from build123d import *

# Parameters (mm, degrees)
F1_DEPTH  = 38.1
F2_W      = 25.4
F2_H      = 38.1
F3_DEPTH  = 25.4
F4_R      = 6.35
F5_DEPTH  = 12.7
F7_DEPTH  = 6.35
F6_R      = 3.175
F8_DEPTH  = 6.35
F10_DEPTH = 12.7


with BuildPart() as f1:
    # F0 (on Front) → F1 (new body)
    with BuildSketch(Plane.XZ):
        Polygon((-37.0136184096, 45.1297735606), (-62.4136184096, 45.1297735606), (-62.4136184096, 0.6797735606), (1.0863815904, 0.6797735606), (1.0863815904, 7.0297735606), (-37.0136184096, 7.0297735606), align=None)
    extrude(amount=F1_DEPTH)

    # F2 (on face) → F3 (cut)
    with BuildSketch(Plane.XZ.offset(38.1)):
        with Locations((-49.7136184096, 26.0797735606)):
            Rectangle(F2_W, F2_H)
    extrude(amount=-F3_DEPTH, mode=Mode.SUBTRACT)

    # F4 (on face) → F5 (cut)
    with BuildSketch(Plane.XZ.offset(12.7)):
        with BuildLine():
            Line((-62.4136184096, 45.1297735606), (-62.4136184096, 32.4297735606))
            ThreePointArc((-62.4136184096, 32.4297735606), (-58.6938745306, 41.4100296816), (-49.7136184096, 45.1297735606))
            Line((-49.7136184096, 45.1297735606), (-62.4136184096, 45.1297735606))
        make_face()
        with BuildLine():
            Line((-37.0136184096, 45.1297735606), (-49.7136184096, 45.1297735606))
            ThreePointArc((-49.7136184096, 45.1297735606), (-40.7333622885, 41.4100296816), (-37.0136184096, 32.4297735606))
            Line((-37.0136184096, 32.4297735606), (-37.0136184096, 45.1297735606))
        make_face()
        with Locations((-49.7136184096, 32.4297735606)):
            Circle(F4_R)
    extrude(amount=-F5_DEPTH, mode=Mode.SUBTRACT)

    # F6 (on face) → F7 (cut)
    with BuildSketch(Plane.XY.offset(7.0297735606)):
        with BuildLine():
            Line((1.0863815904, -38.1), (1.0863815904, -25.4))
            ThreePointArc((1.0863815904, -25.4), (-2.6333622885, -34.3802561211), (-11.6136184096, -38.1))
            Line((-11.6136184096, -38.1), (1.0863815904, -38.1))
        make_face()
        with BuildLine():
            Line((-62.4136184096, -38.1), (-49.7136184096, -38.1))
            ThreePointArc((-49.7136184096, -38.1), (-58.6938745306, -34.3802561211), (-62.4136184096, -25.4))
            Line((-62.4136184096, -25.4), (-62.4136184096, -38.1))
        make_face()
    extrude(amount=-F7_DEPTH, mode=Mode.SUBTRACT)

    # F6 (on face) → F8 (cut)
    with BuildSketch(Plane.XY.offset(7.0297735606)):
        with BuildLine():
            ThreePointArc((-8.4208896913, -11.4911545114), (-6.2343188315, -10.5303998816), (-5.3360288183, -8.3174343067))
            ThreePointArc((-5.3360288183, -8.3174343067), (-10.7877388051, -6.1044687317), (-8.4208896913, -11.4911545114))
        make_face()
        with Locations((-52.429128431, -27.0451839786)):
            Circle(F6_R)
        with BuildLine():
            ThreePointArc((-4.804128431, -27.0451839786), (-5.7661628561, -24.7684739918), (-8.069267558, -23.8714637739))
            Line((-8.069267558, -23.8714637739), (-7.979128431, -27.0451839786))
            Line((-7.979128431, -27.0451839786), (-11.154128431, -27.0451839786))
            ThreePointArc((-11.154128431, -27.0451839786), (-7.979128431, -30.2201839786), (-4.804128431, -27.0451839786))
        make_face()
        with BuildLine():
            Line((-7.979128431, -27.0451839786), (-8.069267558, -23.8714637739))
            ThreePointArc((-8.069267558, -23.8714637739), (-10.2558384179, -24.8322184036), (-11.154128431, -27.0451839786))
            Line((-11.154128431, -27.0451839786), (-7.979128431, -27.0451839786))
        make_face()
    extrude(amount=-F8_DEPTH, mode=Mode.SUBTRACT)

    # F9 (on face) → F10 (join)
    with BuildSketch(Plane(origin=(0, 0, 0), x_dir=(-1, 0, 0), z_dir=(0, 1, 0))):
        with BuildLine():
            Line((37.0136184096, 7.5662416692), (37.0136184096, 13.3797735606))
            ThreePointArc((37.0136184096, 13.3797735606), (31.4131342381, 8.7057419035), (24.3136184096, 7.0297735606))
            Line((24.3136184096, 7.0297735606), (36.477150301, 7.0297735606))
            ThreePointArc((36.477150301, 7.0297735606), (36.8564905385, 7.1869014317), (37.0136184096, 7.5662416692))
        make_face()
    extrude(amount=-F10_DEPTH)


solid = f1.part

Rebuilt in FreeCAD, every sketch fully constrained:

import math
import FreeCAD as App
import Part
import Sketcher
from FreeCAD import Vector
Q = App.Units.Quantity


def add_polygon(sketch, points):
    """Adds a closed chain of lines whose ends are joined by coincident constraints."""
    first, n = sketch.GeometryCount, len(points)
    for a, b in zip(points, points[1:] + points[:1]):
        sketch.addGeometry(Part.LineSegment(App.Vector(*a, 0), App.Vector(*b, 0)), False)
    for i in range(n):
        sketch.addConstraint(Sketcher.Constraint("Coincident", first + i, 2, first + (i + 1) % n, 1))

doc = App.newDocument("Part")
params = doc.addObject("Spreadsheet::Sheet", "Params")
for row, (alias, value) in enumerate([
    ("sketch1_width", "1 in"),
    ("sketch1_width2", "2.5 in"),
    ("sketch1_height", "1.75 in"),
    ("pad1_length", "1.5 in"),
    ("sketch2_width", "1 in"),
    ("sketch2_height", "1.5 in"),
    ("pocket1_length", "1 in"),
    ("sketch3_diameter", "0.5 in"),
    ("sketch3_radius", "0.5 in"),
    ("pocket2_length", "0.5 in"),
    ("sketch4_radius", "0.5 in"),
    ("pocket3_length", "0.25 in"),
    ("sketch5_diameter", "0.25 in"),
    ("pocket4_length", "0.25 in"),
    ("sketch6_radius", "0.625 in"),
    ("pad2_length", "0.5 in"),
], start=1):
    params.set(f"A{row}", alias)
    params.set(f"B{row}", "=" + value)
    params.setAlias(f"B{row}", alias)

body = doc.addObject("PartDesign::Body", "Body")

# Sketch on XZ plane
sketch1 = body.newObject("Sketcher::SketchObject", "Sketch")
sketch1.AttachmentSupport = (doc.getObject("XZ_Plane"), [""])
sketch1.MapMode = "FlatFace"
add_polygon(sketch1, [(-37.013618, 45.129774), (-62.413618, 45.129774), (-62.413618, 0.679774), (1.086382, 0.679774), (1.086382, 7.029774), (-37.013618, 7.029774)])  # lines 0-5
sketch1.addConstraint([
    Sketcher.Constraint("Horizontal", 0),
    Sketcher.Constraint("Vertical", 1),
    Sketcher.Constraint("Horizontal", 2),
    Sketcher.Constraint("Vertical", 3),
    Sketcher.Constraint("Horizontal", 4),
    Sketcher.Constraint("Vertical", 5),
    Sketcher.Constraint("Equal", 4, 5),
    Sketcher.Constraint("DistanceX", 0, 2, 0, 1, Q("1 in")),
    Sketcher.Constraint("DistanceX", 2, 1, 2, 2, Q("2.5 in")),
    Sketcher.Constraint("DistanceY", 1, 2, 1, 1, Q("1.75 in")),
    Sketcher.Constraint("DistanceX", 0, 2, -1, 1, Q("62.413618 mm")),
    Sketcher.Constraint("DistanceY", -1, 1, 0, 2, Q("45.129774 mm")),
])
sketch1.setExpression("Constraints[13]", "Params.sketch1_width")
sketch1.setExpression("Constraints[14]", "Params.sketch1_width2")
sketch1.setExpression("Constraints[15]", "Params.sketch1_height")
pad1 = body.newObject("PartDesign::Pad", "Pad")
pad1.Profile = sketch1
pad1.setExpression("Length", "Params.pad1_length")

# Sketch on XZ plane
sketch2 = body.newObject("Sketcher::SketchObject", "Sketch001")
sketch2.AttachmentSupport = (doc.getObject("XZ_Plane"), [""])
sketch2.MapMode = "FlatFace"
sketch2.AttachmentOffset = App.Placement(Vector(0, 0, 1.5 * 25.4), App.Rotation())
add_polygon(sketch2, [(-62.413618, 45.129774), (-62.413618, 7.029774), (-37.013618, 7.029774), (-37.013618, 45.129774)])  # lines 0-3
sketch2.addConstraint([
    Sketcher.Constraint("Vertical", 0),
    Sketcher.Constraint("Horizontal", 1),
    Sketcher.Constraint("Vertical", 2),
    Sketcher.Constraint("Horizontal", 3),
    Sketcher.Constraint("DistanceX", 1, 1, 1, 2, Q("1 in")),
    Sketcher.Constraint("DistanceY", 0, 2, 0, 1, Q("1.5 in")),
    Sketcher.Constraint("DistanceX", 0, 2, -1, 1, Q("62.413618 mm")),
    Sketcher.Constraint("DistanceY", -1, 1, 0, 2, Q("7.029774 mm")),
])
sketch2.setExpression("Constraints[8]", "Params.sketch2_width")
sketch2.setExpression("Constraints[9]", "Params.sketch2_height")
pocket1 = body.newObject("PartDesign::Pocket", "Pocket")
pocket1.Profile = sketch2
pocket1.setExpression("Length", "Params.pocket1_length")

# Sketch on XZ plane
sketch3 = body.newObject("Sketcher::SketchObject", "Sketch002")
sketch3.AttachmentSupport = (doc.getObject("XZ_Plane"), [""])
sketch3.MapMode = "FlatFace"
sketch3.AttachmentOffset = App.Placement(Vector(0, 0, 0.5 * 25.4), App.Rotation())
sketch3.addGeometry([
    Part.LineSegment(Vector(-62.413618, 45.129774, 0), Vector(-62.413618, 32.429774, 0)),  # 0
    Part.ArcOfCircle(Part.Circle(Vector(-49.713618, 32.429774, 0), Vector(0, 0, 1), 12.7), math.radians(90), math.radians(180)),  # 1
    Part.LineSegment(Vector(-49.713618, 45.129774, 0), Vector(-62.413618, 45.129774, 0)),  # 2
    Part.LineSegment(Vector(-37.013618, 45.129774, 0), Vector(-49.713618, 45.129774, 0)),  # 3
    Part.ArcOfCircle(Part.Circle(Vector(-49.713618, 32.429774, 0), Vector(0, 0, 1), 12.7), math.radians(0), math.radians(90)),  # 4
    Part.LineSegment(Vector(-37.013618, 32.429774, 0), Vector(-37.013618, 45.129774, 0)),  # 5
    Part.Circle(Vector(-49.713618, 32.429774, 0), Vector(0, 0, 1), 6.35),  # 6
], False)
sketch3.addConstraint([
    Sketcher.Constraint("Tangent", 0, 2, 1, 2),
    Sketcher.Constraint("Tangent", 1, 1, 2, 1),
    Sketcher.Constraint("Coincident", 2, 2, 0, 1),
    Sketcher.Constraint("Tangent", 3, 2, 4, 2),
    Sketcher.Constraint("Tangent", 4, 1, 5, 1),
    Sketcher.Constraint("Coincident", 5, 2, 3, 1),
    Sketcher.Constraint("Vertical", 0),
    Sketcher.Constraint("Horizontal", 2),
    Sketcher.Constraint("Horizontal", 3),
    Sketcher.Constraint("Vertical", 5),
    Sketcher.Constraint("Coincident", 4, 3, 1, 3),
    Sketcher.Constraint("Coincident", 6, 3, 1, 3),
    Sketcher.Constraint("Equal", 1, 4),
    Sketcher.Constraint("Diameter", 6, Q("0.5 in")),
    Sketcher.Constraint("Radius", 1, Q("0.5 in")),
    Sketcher.Constraint("DistanceX", 1, 3, -1, 1, Q("49.713618 mm")),
    Sketcher.Constraint("DistanceY", -1, 1, 1, 3, Q("32.429774 mm")),
])
sketch3.setExpression("Constraints[13]", "Params.sketch3_diameter")
sketch3.setExpression("Constraints[14]", "Params.sketch3_radius")
pocket2 = body.newObject("PartDesign::Pocket", "Pocket001")
pocket2.Profile = sketch3
pocket2.setExpression("Length", "Params.pocket2_length")

# Sketch on XY plane
sketch4 = body.newObject("Sketcher::SketchObject", "Sketch003")
sketch4.AttachmentSupport = (doc.getObject("XY_Plane"), [""])
sketch4.MapMode = "FlatFace"
sketch4.AttachmentOffset = App.Placement(Vector(0, 0, 7.029774), App.Rotation())
sketch4.addGeometry([
    Part.LineSegment(Vector(1.086382, -38.1, 0), Vector(1.086382, -25.4, 0)),  # 0
    Part.ArcOfCircle(Part.Circle(Vector(-11.613618, -25.4, 0), Vector(0, 0, 1), 12.7), math.radians(-90), math.radians(0)),  # 1
    Part.LineSegment(Vector(-11.613618, -38.1, 0), Vector(1.086382, -38.1, 0)),  # 2
    Part.LineSegment(Vector(-62.413618, -38.1, 0), Vector(-49.713618, -38.1, 0)),  # 3
    Part.ArcOfCircle(Part.Circle(Vector(-49.713618, -25.4, 0), Vector(0, 0, 1), 12.7), math.radians(180), math.radians(270)),  # 4
    Part.LineSegment(Vector(-62.413618, -25.4, 0), Vector(-62.413618, -38.1, 0)),  # 5
], False)
sketch4.addConstraint([
    Sketcher.Constraint("Tangent", 0, 2, 1, 2),
    Sketcher.Constraint("Tangent", 1, 1, 2, 1),
    Sketcher.Constraint("Coincident", 2, 2, 0, 1),
    Sketcher.Constraint("Tangent", 3, 2, 4, 2),
    Sketcher.Constraint("Tangent", 4, 1, 5, 1),
    Sketcher.Constraint("Coincident", 5, 2, 3, 1),
    Sketcher.Constraint("Vertical", 0),
    Sketcher.Constraint("Horizontal", 2),
    Sketcher.Constraint("Horizontal", 3),
    Sketcher.Constraint("Vertical", 5),
    Sketcher.Constraint("Equal", 1, 4),
    Sketcher.Constraint("Horizontal", 1, 3, 4, 3),
    Sketcher.Constraint("Radius", 1, Q("0.5 in")),
    Sketcher.Constraint("DistanceY", 1, 3, -1, 1, Q("1 in")),
    Sketcher.Constraint("DistanceX", 4, 3, 0, 2, Q("2 in")),
    Sketcher.Constraint("DistanceX", 1, 3, -1, 1, Q("11.613618 mm")),
])
sketch4.setExpression("Constraints[12]", "Params.sketch4_radius")
pocket3 = body.newObject("PartDesign::Pocket", "Pocket002")
pocket3.Profile = sketch4
pocket3.setExpression("Length", "Params.pocket3_length")

# Sketch on XY plane
sketch5 = body.newObject("Sketcher::SketchObject", "Sketch004")
sketch5.AttachmentSupport = (doc.getObject("XY_Plane"), [""])
sketch5.MapMode = "FlatFace"
sketch5.AttachmentOffset = App.Placement(Vector(0, 0, 7.029774), App.Rotation())
sketch5.addGeometry([
    Part.ArcOfCircle(Part.Circle(Vector(-8.511029, -8.317434, 0), Vector(0, 0, 1), 3.175), math.radians(-88.373138), math.radians(0)),  # 0
    Part.ArcOfCircle(Part.Circle(Vector(-8.511029, -8.317434, 0), Vector(0, 0, 1), 3.175), math.radians(0), math.radians(271.626862)),  # 1
    Part.Circle(Vector(-52.429128, -27.045184, 0), Vector(0, 0, 1), 3.175),  # 2
    Part.ArcOfCircle(Part.Circle(Vector(-7.979128, -27.045184, 0), Vector(0, 0, 1), 3.175), math.radians(0), math.radians(91.626862)),  # 3
    Part.ArcOfCircle(Part.Circle(Vector(-7.979128, -27.045184, 0), Vector(0, 0, 1), 3.175), math.radians(91.626862), math.radians(180)),  # 4
    Part.ArcOfCircle(Part.Circle(Vector(-7.979128, -27.045184, 0), Vector(0, 0, 1), 3.175), math.radians(180), math.radians(360)),  # 5
], False)
sketch5.addConstraint([
    Sketcher.Constraint("Tangent", 0, 1, 1, 2),
    Sketcher.Constraint("Coincident", 1, 1, 0, 2),
    Sketcher.Constraint("Tangent", 3, 2, 4, 1),
    Sketcher.Constraint("Tangent", 4, 2, 5, 1),
    Sketcher.Constraint("Tangent", 5, 2, 3, 1),
    Sketcher.Constraint("Equal", 1, 2),
    Sketcher.Constraint("Equal", 2, 3),
    Sketcher.Constraint("Horizontal", 2, 3, 3, 3),
    Sketcher.Constraint("Horizontal", 0, 3, 1, 1),
    Sketcher.Constraint("Horizontal", 5, 3, 4, 2),
    Sketcher.Constraint("Horizontal", 4, 2, 5, 2),
    Sketcher.Constraint("Diameter", 2, Q("0.25 in")),
    Sketcher.Constraint("DistanceX", 2, 3, 3, 3, Q("1.75 in")),
    Sketcher.Constraint("DistanceX", 2, 3, 0, 3, Q("43.9181 mm")),
    Sketcher.Constraint("DistanceX", 0, 3, -1, 1, Q("8.511029 mm")),
    Sketcher.Constraint("DistanceX", 0, 1, -1, 1, Q("8.42089 mm")),
    Sketcher.Constraint("DistanceY", 2, 3, 0, 3, Q("18.72775 mm")),
    Sketcher.Constraint("DistanceX", 3, 2, 4, 3, Q("0.090139 mm")),
    Sketcher.Constraint("DistanceY", 0, 3, -1, 1, Q("8.317434 mm")),
])
sketch5.setExpression("Constraints[11]", "Params.sketch5_diameter")
pocket4 = body.newObject("PartDesign::Pocket", "Pocket003")
pocket4.Profile = sketch5
pocket4.setExpression("Length", "Params.pocket4_length")

# Sketch on XZ plane
sketch6 = body.newObject("Sketcher::SketchObject", "Sketch005")
sketch6.AttachmentSupport = (doc.getObject("XZ_Plane"), [""])
sketch6.MapMode = "FlatFace"
sketch6.addGeometry([
    Part.LineSegment(Vector(-37.013618, 7.566242, 0), Vector(-37.013618, 13.379774, 0)),
    Part.ArcOfCircle(Part.Circle(Vector(-24.313618, 22.904774, 0), Vector(0, 0, 1), 15.875), math.radians(-143.130102), math.radians(-90)),
    Part.LineSegment(Vector(-24.313618, 7.029774, 0), Vector(-36.47715, 7.029774, 0)),
    Part.ArcOfCircle(Part.Circle(Vector(-36.47715, 7.566242, 0), Vector(0, 0, 1), 0.536468), math.radians(180), math.radians(270)),
], False)
sketch6.addConstraint([
    Sketcher.Constraint("Coincident", 0, 2, 1, 1),
    Sketcher.Constraint("Tangent", 1, 2, 2, 1),
    Sketcher.Constraint("Tangent", 2, 2, 3, 2),
    Sketcher.Constraint("Tangent", 3, 1, 0, 1),
    Sketcher.Constraint("Vertical", 0),
    Sketcher.Constraint("Horizontal", 2),
    Sketcher.Constraint("Radius", 1, Q("0.625 in")),
    Sketcher.Constraint("DistanceX", 0, 2, 1, 3, Q("0.5 in")),
    Sketcher.Constraint("Radius", 3, Q("0.536468 mm")),
    Sketcher.Constraint("DistanceX", 1, 3, -1, 1, Q("24.313618 mm")),
    Sketcher.Constraint("DistanceY", -1, 1, 3, 3, Q("7.566242 mm")),
])
sketch6.setExpression("Constraints[6]", "Params.sketch6_radius")
pad2 = body.newObject("PartDesign::Pad", "Pad001")
pad2.Profile = sketch6
pad2.setExpression("Length", "Params.pad2_length")

doc.recompute()
